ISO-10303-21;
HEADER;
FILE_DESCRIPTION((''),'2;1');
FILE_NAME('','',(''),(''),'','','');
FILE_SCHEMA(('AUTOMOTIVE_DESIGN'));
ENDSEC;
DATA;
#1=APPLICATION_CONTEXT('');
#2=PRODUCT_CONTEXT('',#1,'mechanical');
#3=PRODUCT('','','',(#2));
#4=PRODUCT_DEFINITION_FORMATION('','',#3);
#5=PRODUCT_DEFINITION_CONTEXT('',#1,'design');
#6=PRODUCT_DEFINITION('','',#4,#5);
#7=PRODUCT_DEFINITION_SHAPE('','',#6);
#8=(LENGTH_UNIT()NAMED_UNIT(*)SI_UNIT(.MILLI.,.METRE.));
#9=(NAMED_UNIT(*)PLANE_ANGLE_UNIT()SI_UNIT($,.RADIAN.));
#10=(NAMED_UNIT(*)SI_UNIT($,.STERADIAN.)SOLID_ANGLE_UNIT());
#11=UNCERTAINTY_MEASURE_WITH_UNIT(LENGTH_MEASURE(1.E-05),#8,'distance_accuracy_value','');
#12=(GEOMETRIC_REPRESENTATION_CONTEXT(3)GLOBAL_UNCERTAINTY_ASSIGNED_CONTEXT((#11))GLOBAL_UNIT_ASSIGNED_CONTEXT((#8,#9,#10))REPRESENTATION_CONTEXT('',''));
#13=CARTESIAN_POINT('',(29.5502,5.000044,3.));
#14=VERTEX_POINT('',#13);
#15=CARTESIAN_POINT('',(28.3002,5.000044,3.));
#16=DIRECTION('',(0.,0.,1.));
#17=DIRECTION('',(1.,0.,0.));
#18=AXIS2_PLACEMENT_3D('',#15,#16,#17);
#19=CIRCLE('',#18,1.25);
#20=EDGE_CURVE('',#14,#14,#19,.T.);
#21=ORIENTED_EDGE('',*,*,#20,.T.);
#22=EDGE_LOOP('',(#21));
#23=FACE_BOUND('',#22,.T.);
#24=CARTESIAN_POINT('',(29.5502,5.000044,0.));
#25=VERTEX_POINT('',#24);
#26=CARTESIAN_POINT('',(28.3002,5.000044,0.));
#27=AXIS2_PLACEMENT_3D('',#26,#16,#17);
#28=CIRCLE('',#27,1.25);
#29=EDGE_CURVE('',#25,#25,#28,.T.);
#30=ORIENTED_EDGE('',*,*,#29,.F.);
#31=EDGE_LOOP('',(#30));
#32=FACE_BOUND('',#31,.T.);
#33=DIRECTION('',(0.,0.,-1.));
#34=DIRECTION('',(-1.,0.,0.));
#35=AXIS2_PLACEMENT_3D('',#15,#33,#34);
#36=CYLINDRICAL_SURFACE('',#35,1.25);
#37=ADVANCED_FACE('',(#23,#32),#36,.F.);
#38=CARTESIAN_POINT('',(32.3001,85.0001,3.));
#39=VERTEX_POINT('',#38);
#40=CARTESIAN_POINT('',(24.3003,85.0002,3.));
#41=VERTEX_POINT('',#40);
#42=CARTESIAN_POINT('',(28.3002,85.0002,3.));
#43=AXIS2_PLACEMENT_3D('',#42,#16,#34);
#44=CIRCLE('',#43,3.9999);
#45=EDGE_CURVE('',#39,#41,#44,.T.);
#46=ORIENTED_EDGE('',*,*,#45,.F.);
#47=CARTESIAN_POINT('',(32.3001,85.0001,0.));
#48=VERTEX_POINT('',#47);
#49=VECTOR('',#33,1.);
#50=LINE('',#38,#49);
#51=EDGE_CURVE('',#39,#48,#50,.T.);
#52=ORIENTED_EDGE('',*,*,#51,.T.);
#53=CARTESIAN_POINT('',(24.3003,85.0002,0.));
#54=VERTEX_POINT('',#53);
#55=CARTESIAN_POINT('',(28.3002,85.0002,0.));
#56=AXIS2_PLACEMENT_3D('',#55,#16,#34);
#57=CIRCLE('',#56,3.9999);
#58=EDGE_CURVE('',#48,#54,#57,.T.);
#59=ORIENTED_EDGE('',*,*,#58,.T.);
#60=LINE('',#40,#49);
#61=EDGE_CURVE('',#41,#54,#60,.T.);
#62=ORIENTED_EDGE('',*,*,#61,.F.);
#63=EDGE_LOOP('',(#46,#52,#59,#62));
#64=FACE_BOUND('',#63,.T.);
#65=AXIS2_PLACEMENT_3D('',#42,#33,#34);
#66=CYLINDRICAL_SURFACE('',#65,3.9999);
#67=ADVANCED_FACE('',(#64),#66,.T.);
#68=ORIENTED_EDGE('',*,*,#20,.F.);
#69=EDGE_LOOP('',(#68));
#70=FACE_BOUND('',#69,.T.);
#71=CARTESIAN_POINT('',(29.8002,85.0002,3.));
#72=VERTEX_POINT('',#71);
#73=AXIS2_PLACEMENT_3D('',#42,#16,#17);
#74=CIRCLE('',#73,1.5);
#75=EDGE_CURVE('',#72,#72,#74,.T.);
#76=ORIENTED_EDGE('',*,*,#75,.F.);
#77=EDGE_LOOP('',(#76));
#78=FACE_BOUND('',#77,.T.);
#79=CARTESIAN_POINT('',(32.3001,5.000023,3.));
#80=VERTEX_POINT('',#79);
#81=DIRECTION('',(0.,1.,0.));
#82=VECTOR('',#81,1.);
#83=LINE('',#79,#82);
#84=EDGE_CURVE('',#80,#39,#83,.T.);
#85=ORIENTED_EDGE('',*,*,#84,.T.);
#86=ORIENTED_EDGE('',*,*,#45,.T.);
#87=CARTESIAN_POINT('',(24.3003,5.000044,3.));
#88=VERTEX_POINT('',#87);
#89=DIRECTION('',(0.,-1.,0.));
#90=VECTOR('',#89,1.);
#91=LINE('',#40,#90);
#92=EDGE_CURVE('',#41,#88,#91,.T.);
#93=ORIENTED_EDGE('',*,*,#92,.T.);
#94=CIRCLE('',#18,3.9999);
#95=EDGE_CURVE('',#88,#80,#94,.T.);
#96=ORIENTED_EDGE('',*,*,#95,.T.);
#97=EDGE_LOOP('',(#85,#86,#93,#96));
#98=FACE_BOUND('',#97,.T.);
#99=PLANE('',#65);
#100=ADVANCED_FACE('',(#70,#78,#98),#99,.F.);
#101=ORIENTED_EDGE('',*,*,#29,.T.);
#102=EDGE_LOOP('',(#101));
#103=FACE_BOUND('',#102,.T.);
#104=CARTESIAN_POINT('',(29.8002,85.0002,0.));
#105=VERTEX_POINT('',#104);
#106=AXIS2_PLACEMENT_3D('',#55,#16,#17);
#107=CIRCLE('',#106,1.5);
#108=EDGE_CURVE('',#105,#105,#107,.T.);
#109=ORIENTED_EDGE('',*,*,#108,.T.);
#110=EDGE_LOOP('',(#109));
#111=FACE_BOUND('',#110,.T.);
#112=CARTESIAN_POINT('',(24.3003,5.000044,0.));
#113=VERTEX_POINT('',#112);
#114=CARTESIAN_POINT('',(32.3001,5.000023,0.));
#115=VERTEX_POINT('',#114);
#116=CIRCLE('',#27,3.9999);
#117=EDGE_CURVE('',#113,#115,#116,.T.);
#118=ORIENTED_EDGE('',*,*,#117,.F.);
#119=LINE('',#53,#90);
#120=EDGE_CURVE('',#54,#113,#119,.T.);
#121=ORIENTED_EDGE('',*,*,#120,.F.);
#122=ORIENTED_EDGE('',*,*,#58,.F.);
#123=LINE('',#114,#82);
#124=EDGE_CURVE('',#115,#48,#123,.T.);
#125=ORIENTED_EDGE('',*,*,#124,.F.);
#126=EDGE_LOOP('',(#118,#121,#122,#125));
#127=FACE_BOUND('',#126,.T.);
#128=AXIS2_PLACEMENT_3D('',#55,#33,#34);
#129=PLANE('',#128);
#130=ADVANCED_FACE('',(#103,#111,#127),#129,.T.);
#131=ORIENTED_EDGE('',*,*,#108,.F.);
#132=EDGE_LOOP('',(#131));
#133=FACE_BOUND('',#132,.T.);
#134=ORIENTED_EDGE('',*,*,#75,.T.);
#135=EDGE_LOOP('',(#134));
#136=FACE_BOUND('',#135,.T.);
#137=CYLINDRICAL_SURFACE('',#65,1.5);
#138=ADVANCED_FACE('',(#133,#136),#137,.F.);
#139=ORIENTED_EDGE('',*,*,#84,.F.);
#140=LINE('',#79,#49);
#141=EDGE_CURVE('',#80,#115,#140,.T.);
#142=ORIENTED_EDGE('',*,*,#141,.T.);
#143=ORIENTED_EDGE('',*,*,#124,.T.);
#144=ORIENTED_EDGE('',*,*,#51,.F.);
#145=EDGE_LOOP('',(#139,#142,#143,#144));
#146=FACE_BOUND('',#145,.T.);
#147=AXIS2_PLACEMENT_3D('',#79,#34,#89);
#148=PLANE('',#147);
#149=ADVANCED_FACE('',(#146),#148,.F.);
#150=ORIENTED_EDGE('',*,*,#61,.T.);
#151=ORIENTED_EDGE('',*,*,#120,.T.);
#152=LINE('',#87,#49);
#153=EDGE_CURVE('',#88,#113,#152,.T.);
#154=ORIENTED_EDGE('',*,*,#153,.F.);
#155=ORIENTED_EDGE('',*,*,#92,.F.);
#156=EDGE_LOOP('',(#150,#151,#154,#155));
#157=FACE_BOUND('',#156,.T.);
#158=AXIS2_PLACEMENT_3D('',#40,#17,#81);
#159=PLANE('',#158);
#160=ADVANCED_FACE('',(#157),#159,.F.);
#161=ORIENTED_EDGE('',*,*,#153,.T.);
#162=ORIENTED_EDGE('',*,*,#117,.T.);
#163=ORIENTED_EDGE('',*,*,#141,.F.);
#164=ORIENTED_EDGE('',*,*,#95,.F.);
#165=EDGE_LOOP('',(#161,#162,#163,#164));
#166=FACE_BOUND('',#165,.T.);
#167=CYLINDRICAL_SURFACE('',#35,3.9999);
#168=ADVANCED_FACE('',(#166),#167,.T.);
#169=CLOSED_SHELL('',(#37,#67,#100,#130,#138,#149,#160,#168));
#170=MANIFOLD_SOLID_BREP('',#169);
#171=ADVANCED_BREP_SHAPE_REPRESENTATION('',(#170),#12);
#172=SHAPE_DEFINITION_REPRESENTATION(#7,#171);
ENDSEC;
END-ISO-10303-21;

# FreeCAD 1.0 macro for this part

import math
import FreeCAD as App
import Part
import Sketcher
Q = App.Units.Quantity

doc = App.newDocument("Part")
body = doc.addObject("PartDesign::Body", "Body")

# Sketch on XY plane
sketch1 = body.newObject("Sketcher::SketchObject", "Sketch")
sketch1.AttachmentSupport = (doc.getObject("XY_Plane"), [""])
sketch1.MapMode = "FlatFace"
sketch1.addGeometry([
    Part.LineSegment(App.Vector(24.3003, 85.0002, 0), App.Vector(24.3003, 5.000044, 0)),  # 0
    Part.ArcOfCircle(Part.Circle(App.Vector(28.3002, 5.000044, 0), App.Vector(0, 0, 1), 3.9999), math.radians(180), math.radians(359.999697)),  # 1
    Part.LineSegment(App.Vector(32.3001, 5.000023, 0), App.Vector(32.3001, 85.0001, 0)),  # 2
    Part.ArcOfCircle(Part.Circle(App.Vector(28.3002, 85.0002, 0), App.Vector(0, 0, 1), 3.9999), math.radians(-0.001432), math.radians(180)),  # 3
    Part.Circle(App.Vector(28.3002, 5.000044, 0), App.Vector(0, 0, 1), 1.25),  # 4
    Part.Circle(App.Vector(28.3002, 85.0002, 0), App.Vector(0, 0, 1), 1.5),  # 5
], False)
sketch1.addConstraint([
    Sketcher.Constraint("Tangent", 0, 2, 1, 1),
    Sketcher.Constraint("Coincident", 1, 2, 2, 1),
    Sketcher.Constraint("Coincident", 2, 2, 3, 1),
    Sketcher.Constraint("Tangent", 3, 2, 0, 1),
    Sketcher.Constraint("Vertical", 0),
    Sketcher.Constraint("Vertical", 2),
    Sketcher.Constraint("Coincident", 4, 3, 1, 3),
    Sketcher.Constraint("Coincident", 5, 3, 3, 3),
    Sketcher.Constraint("Diameter", 5, Q("3 mm")),
    Sketcher.Constraint("Diameter", 4, Q("2.5 mm")),
    Sketcher.Constraint("Radius", 1, Q("3.9999 mm")),
    Sketcher.Constraint("DistanceX", -1, 1, 1, 3, Q("28.3002 mm")),
    Sketcher.Constraint("DistanceY", -1, 1, 3, 3, Q("85.0002 mm")),
    Sketcher.Constraint("DistanceY", -1, 1, 2, 2, Q("85.0001 mm")),
    Sketcher.Constraint("DistanceY", 0, 2, 0, 1, Q("80.000156 mm")),
    Sketcher.Constraint("DistanceY", 2, 1, 2, 2, Q("80.000077 mm")),
])
pad1 = body.newObject("PartDesign::Pad", "Pad")
pad1.Profile = sketch1
pad1.Length = 3

doc.recompute()
